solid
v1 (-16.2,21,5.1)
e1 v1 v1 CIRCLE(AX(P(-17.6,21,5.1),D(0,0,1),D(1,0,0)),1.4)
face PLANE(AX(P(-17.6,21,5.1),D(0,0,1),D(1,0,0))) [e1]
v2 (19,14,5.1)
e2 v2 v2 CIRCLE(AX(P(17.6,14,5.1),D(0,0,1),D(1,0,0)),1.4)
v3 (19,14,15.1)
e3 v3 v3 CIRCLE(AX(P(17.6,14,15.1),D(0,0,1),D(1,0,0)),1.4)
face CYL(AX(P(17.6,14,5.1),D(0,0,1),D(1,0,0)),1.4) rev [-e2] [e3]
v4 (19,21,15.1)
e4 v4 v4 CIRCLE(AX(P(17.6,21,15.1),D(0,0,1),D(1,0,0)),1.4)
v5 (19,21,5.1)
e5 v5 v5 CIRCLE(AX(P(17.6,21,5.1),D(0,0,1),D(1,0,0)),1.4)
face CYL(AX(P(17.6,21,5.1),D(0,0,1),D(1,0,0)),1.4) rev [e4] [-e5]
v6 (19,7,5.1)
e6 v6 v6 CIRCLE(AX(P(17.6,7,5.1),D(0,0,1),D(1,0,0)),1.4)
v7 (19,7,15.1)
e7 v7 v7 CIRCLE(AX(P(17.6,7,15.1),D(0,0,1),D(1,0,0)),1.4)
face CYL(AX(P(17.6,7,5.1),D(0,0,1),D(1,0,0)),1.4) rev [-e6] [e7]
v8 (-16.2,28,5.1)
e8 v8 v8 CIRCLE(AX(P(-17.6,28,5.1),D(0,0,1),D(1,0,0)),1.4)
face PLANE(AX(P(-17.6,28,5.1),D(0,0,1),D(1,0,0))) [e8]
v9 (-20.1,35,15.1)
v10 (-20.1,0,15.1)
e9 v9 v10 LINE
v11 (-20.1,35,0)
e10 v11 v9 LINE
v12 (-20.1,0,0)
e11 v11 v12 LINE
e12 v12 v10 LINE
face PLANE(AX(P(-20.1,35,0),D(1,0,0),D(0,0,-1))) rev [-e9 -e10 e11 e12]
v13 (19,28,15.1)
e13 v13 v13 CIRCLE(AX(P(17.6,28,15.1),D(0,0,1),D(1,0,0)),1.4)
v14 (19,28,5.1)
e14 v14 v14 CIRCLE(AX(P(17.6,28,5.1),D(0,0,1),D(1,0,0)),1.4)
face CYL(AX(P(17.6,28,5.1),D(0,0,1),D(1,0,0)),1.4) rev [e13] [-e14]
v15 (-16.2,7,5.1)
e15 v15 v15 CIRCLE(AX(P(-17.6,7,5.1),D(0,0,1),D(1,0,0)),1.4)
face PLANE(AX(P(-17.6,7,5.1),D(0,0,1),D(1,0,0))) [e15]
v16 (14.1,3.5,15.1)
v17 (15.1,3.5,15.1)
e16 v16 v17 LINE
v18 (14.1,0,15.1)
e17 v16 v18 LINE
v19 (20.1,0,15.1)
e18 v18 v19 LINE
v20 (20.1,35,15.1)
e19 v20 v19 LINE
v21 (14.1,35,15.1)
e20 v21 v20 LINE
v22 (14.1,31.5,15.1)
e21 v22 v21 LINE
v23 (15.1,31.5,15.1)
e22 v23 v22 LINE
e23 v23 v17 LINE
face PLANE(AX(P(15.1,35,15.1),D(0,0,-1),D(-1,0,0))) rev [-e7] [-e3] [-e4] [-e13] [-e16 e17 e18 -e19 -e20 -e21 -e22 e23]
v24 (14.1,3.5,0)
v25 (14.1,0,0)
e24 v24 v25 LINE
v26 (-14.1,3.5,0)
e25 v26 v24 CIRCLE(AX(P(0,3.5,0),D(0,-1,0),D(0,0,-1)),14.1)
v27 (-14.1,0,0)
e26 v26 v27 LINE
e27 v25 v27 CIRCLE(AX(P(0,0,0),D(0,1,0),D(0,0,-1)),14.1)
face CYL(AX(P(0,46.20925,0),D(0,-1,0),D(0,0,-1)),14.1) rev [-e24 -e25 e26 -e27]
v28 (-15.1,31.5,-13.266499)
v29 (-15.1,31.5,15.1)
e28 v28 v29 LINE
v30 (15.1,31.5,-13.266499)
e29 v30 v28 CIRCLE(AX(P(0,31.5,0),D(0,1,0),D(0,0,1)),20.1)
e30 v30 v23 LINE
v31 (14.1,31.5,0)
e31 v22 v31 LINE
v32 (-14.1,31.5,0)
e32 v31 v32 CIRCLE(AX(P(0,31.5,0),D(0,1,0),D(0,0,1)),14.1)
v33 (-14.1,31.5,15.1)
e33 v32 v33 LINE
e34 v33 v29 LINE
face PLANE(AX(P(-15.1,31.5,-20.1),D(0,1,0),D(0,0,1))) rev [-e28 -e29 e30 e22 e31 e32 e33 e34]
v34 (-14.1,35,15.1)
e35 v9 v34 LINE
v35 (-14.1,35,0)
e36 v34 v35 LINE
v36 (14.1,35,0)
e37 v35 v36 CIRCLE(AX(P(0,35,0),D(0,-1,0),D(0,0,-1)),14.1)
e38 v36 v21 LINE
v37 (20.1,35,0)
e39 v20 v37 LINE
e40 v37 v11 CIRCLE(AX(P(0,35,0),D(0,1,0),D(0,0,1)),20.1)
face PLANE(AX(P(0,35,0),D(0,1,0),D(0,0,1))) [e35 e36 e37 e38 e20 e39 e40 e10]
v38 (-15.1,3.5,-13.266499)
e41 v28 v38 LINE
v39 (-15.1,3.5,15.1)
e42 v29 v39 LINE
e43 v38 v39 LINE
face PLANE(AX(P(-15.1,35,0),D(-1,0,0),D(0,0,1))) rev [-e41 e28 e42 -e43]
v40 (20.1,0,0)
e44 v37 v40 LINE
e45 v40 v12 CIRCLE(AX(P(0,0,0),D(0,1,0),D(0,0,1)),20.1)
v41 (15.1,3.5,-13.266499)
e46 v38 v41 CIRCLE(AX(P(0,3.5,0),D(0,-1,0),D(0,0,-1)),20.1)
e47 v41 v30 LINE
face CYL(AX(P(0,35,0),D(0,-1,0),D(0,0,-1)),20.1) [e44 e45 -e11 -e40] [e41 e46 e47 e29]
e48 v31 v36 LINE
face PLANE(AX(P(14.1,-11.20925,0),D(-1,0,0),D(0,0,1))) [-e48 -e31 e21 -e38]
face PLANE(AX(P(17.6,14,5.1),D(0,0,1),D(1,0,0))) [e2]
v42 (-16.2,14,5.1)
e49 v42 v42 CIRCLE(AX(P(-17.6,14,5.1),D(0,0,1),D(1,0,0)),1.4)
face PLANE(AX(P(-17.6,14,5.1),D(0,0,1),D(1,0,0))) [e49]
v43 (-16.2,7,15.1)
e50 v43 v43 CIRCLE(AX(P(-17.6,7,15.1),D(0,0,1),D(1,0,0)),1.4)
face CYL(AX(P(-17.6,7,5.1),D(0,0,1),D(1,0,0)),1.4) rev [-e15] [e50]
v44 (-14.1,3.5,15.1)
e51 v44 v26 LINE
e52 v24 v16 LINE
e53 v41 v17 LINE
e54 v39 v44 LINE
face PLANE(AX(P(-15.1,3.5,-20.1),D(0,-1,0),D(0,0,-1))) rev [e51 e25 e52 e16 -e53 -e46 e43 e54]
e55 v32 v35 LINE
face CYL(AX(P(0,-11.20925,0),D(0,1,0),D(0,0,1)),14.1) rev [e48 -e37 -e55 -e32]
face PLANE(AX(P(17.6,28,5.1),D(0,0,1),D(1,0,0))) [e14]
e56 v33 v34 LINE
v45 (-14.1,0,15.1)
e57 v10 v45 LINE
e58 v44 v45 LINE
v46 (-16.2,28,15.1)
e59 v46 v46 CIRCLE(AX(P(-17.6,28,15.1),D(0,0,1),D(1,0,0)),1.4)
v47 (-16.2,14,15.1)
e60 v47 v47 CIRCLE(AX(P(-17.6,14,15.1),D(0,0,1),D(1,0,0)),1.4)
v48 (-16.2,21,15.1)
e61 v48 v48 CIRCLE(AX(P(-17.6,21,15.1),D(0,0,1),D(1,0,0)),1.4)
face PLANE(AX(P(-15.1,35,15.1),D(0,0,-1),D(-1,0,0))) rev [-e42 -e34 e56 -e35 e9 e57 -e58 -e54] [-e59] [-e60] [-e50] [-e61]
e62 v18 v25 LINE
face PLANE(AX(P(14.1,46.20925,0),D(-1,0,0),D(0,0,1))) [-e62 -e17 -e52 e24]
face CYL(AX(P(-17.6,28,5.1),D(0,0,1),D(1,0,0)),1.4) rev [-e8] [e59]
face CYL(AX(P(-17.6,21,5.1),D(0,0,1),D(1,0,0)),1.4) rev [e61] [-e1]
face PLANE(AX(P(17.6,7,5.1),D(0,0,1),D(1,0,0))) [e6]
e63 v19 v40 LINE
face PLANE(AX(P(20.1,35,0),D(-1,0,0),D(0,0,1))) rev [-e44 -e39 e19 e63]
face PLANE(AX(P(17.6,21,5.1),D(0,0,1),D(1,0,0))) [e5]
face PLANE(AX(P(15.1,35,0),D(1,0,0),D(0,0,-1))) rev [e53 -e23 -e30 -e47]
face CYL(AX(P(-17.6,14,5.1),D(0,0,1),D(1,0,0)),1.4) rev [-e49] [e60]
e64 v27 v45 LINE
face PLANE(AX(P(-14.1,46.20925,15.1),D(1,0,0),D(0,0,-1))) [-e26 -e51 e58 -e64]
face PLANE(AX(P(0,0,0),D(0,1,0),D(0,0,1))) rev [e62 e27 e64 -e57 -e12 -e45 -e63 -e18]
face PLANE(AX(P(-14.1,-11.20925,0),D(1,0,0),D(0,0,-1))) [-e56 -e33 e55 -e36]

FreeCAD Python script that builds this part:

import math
import FreeCAD as App
import Part
import Sketcher
from FreeCAD import Vector

doc = App.newDocument("Part")
body = doc.addObject("PartDesign::Body", "Body")

# Sketch on XZ plane
sketch1 = body.newObject("Sketcher::SketchObject", "Sketch")
sketch1.AttachmentSupport = (doc.getObject("XZ_Plane"), [""])
sketch1.MapMode = "FlatFace"
sketch1.addGeometry([
    Part.LineSegment(Vector(15, 0, 0), Vector(15, 15, 0)),  # 0
    Part.LineSegment(Vector(15, 15, 0), Vector(20, 15, 0)),  # 1
    Part.LineSegment(Vector(20, 15, 0), Vector(20, 0, 0)),  # 2
    Part.ArcOfCircle(Part.Circle(Vector(0, 0, 0), Vector(0, 0, 1), 20), math.radians(180), math.radians(360)),  # 3
    Part.LineSegment(Vector(-20, 0, 0), Vector(-20, 15, 0)),  # 4
    Part.LineSegment(Vector(-20, 15, 0), Vector(-15, 15, 0)),  # 5
    Part.LineSegment(Vector(-15, 15, 0), Vector(-15, 0, 0)),  # 6
    Part.ArcOfCircle(Part.Circle(Vector(0, 0, 0), Vector(0, 0, 1), 15), math.radians(180), math.radians(360)),  # 7
], False)
sketch1.addConstraint([
    Sketcher.Constraint("Coincident", 0, 2, 1, 1),
    Sketcher.Constraint("Coincident", 1, 2, 2, 1),
    Sketcher.Constraint("Tangent", 2, 2, 3, 2),
    Sketcher.Constraint("Tangent", 3, 1, 4, 1),
    Sketcher.Constraint("Coincident", 4, 2, 5, 1),
    Sketcher.Constraint("Coincident", 5, 2, 6, 1),
    Sketcher.Constraint("Tangent", 6, 2, 7, 1),
    Sketcher.Constraint("Tangent", 7, 2, 0, 1),
    Sketcher.Constraint("Vertical", 0),
    Sketcher.Constraint("Horizontal", 1),
    Sketcher.Constraint("Vertical", 2),
    Sketcher.Constraint("Vertical", 4),
    Sketcher.Constraint("Horizontal", 5),
    Sketcher.Constraint("Vertical", 6),
    Sketcher.Constraint("Coincident", 3, 3, -1, 1),
    Sketcher.Constraint("Coincident", 7, 3, -1, 1),
    Sketcher.Constraint("Horizontal", 1, 2, 4, 2),
    Sketcher.Constraint("Radius", 3, 20.1),
    Sketcher.Constraint("Radius", 7, 15.1),
    Sketcher.Constraint("DistanceY", 0, 1, 0, 2, 15.1),
])
pad1 = body.newObject("PartDesign::Pad", "Pad")
pad1.Profile = sketch1
pad1.Length = 35
pad1.Reversed = True

# Sketch on XY plane
sketch2 = body.newObject("Sketcher::SketchObject", "Sketch001")
sketch2.AttachmentSupport = (doc.getObject("XY_Plane"), [""])
sketch2.MapMode = "FlatFace"
sketch2.AttachmentOffset = App.Placement(Vector(0, 0, 15.1), App.Rotation())
sketch2.addGeometry([
    Part.LineSegment(Vector(-15, 32, 0), Vector(-15, 4, 0)),
    Part.LineSegment(Vector(-15, 4, 0), Vector(15, 4, 0)),
    Part.LineSegment(Vector(15, 4, 0), Vector(15, 32, 0)),
    Part.LineSegment(Vector(15, 32, 0), Vector(-15, 32, 0)),
], False)
sketch2.addConstraint([
    Sketcher.Constraint("Coincident", 0, 2, 1, 1),
    Sketcher.Constraint("Coincident", 1, 2, 2, 1),
    Sketcher.Constraint("Coincident", 2, 2, 3, 1),
    Sketcher.Constraint("Coincident", 3, 2, 0, 1),
    Sketcher.Constraint("Vertical", 0),
    Sketcher.Constraint("Horizontal", 1),
    Sketcher.Constraint("Vertical", 2),
    Sketcher.Constraint("Horizontal", 3),
    Sketcher.Constraint("DistanceY", 0, 2, 0, 1, 28.0),
    Sketcher.Constraint("DistanceX", 1, 1, 1, 2, 30.2),
    Sketcher.Constraint("DistanceX", 0, 2, -1, 1, 15.1),
    Sketcher.Constraint("DistanceY", -1, 1, 0, 2, 3.5),
])
pocket1 = body.newObject("PartDesign::Pocket", "Pocket")
pocket1.Profile = sketch2
pocket1.Type = "ThroughAll"

# Sketch on XZ plane
sketch3 = body.newObject("Sketcher::SketchObject", "Sketch002")
sketch3.AttachmentSupport = (doc.getObject("XZ_Plane"), [""])
sketch3.MapMode = "FlatFace"
sketch3.AttachmentOffset = App.Placement(Vector(0, 0, -31.5), App.Rotation())
sketch3.addGeometry([
    Part.LineSegment(Vector(-15.1, 0, 0), Vector(-15.1, 15.1, 0)),  # 0
    Part.LineSegment(Vector(-15.1, 15.1, 0), Vector(-14.1, 15.1, 0)),  # 1
    Part.LineSegment(Vector(-14.1, 15.1, 0), Vector(-14.1, 0, 0)),  # 2
    Part.ArcOfCircle(Part.Circle(Vector(0, 0, 0), Vector(0, 0, 1), 14.1), math.radians(180), math.radians(360)),  # 3
    Part.LineSegment(Vector(14.1, 0, 0), Vector(14.1, 15.1, 0)),  # 4
    Part.LineSegment(Vector(14.1, 15.1, 0), Vector(15.1, 15.1, 0)),  # 5
    Part.LineSegment(Vector(15.1, 15.1, 0), Vector(15.1, 0, 0)),  # 6
    Part.ArcOfCircle(Part.Circle(Vector(0, 0, 0), Vector(0, 0, 1), 15.1), math.radians(180), math.radians(360)),  # 7
], False)
sketch3.addConstraint([
    Sketcher.Constraint("Coincident", 0, 2, 1, 1),
    Sketcher.Constraint("Coincident", 1, 2, 2, 1),
    Sketcher.Constraint("Tangent", 2, 2, 3, 1),
    Sketcher.Constraint("Tangent", 3, 2, 4, 1),
    Sketcher.Constraint("Coincident", 4, 2, 5, 1),
    Sketcher.Constraint("Coincident", 5, 2, 6, 1),
    Sketcher.Constraint("Tangent", 6, 2, 7, 2),
    Sketcher.Constraint("Tangent", 7, 1, 0, 1),
    Sketcher.Constraint("Vertical", 0),
    Sketcher.Constraint("Horizontal", 1),
    Sketcher.Constraint("Vertical", 2),
    Sketcher.Constraint("Vertical", 4),
    Sketcher.Constraint("Horizontal", 5),
    Sketcher.Constraint("Vertical", 6),
    Sketcher.Constraint("Coincident", 3, 3, -1, 1),
    Sketcher.Constraint("Coincident", 7, 3, -1, 1),
    Sketcher.Constraint("Horizontal", 1, 2, 4, 2),
    Sketcher.Constraint("Radius", 3, 14.1),
    Sketcher.Constraint("Radius", 7, 15.1),
    Sketcher.Constraint("DistanceY", 0, 1, 0, 2, 15.1),
])
pad2 = body.newObject("PartDesign::Pad", "Pad001")
pad2.Profile = sketch3
pad2.Length = 3.5
pad2.Reversed = True

# Sketch on XZ plane
sketch4 = body.newObject("Sketcher::SketchObject", "Sketch003")
sketch4.AttachmentSupport = (doc.getObject("XZ_Plane"), [""])
sketch4.MapMode = "FlatFace"
sketch4.addGeometry([
    Part.LineSegment(Vector(-15.1, 15.1, 0), Vector(-15.1, 0, 0)),  # 0
    Part.ArcOfCircle(Part.Circle(Vector(0, 0, 0), Vector(0, 0, 1), 15.1), math.radians(180), math.radians(360)),  # 1
    Part.LineSegment(Vector(15.1, 0, 0), Vector(15.1, 15.1, 0)),  # 2
    Part.LineSegment(Vector(15.1, 15.1, 0), Vector(14.1, 15.1, 0)),  # 3
    Part.LineSegment(Vector(14.1, 15.1, 0), Vector(14.1, 0, 0)),  # 4
    Part.ArcOfCircle(Part.Circle(Vector(0, 0, 0), Vector(0, 0, 1), 14.1), math.radians(180), math.radians(360)),  # 5
    Part.LineSegment(Vector(-14.1, 0, 0), Vector(-14.1, 15.1, 0)),  # 6
    Part.LineSegment(Vector(-14.1, 15.1, 0), Vector(-15.1, 15.1, 0)),  # 7
], False)
sketch4.addConstraint([
    Sketcher.Constraint("Tangent", 0, 2, 1, 1),
    Sketcher.Constraint("Tangent", 1, 2, 2, 1),
    Sketcher.Constraint("Coincident", 2, 2, 3, 1),
    Sketcher.Constraint("Coincident", 3, 2, 4, 1),
    Sketcher.Constraint("Tangent", 4, 2, 5, 2),
    Sketcher.Constraint("Tangent", 5, 1, 6, 1),
    Sketcher.Constraint("Coincident", 6, 2, 7, 1),
    Sketcher.Constraint("Coincident", 7, 2, 0, 1),
    Sketcher.Constraint("Vertical", 0),
    Sketcher.Constraint("Vertical", 2),
    Sketcher.Constraint("Horizontal", 3),
    Sketcher.Constraint("Vertical", 4),
    Sketcher.Constraint("Vertical", 6),
    Sketcher.Constraint("Horizontal", 7),
    Sketcher.Constraint("Coincident", 1, 3, -1, 1),
    Sketcher.Constraint("Coincident", 5, 3, -1, 1),
    Sketcher.Constraint("Horizontal", 3, 2, 6, 2),
    Sketcher.Constraint("Radius", 1, 15.1),
    Sketcher.Constraint("Radius", 5, 14.1),
    Sketcher.Constraint("DistanceY", 0, 2, 0, 1, 15.1),
])
pad3 = body.newObject("PartDesign::Pad", "Pad002")
pad3.Profile = sketch4
pad3.Length = 3.5
pad3.Reversed = True

# Sketch on XY plane
sketch5 = body.newObject("Sketcher::SketchObject", "Sketch004")
sketch5.AttachmentSupport = (doc.getObject("XY_Plane"), [""])
sketch5.MapMode = "FlatFace"
sketch5.AttachmentOffset = App.Placement(Vector(0, 0, 15.1), App.Rotation())
sketch5.addGeometry([
    Part.Circle(Vector(-17.6, 28, 0), Vector(0, 0, 1), 1.4),  # 0
    Part.Circle(Vector(17.6, 28, 0), Vector(0, 0, 1), 1.4),  # 1
    Part.Circle(Vector(17.6, 21, 0), Vector(0, 0, 1), 1.4),  # 2
    Part.Circle(Vector(17.6, 14, 0), Vector(0, 0, 1), 1.4),  # 3
    Part.Circle(Vector(17.6, 7, 0), Vector(0, 0, 1), 1.4),  # 4
    Part.Circle(Vector(-17.6, 21, 0), Vector(0, 0, 1), 1.4),  # 5
    Part.Circle(Vector(-17.6, 14, 0), Vector(0, 0, 1), 1.4),  # 6
    Part.Circle(Vector(-17.6, 7, 0), Vector(0, 0, 1), 1.4),  # 7
], False)
sketch5.addConstraint([
    Sketcher.Constraint("Equal", 0, 1),
    Sketcher.Constraint("Equal", 1, 2),
    Sketcher.Constraint("Equal", 2, 3),
    Sketcher.Constraint("Equal", 3, 4),
    Sketcher.Constraint("Equal", 4, 5),
    Sketcher.Constraint("Equal", 5, 6),
    Sketcher.Constraint("Equal", 6, 7),
    Sketcher.Constraint("Symmetric", 0, 3, 1, 3, -2),
    Sketcher.Constraint("Symmetric", 2, 3, 5, 3, -2),
    Sketcher.Constraint("Symmetric", 3, 3, 6, 3, -2),
    Sketcher.Constraint("Symmetric", 4, 3, 7, 3, -2),
    Sketcher.Constraint("Vertical", 1, 3, 2, 3),
    Sketcher.Constraint("Vertical", 2, 3, 3, 3),
    Sketcher.Constraint("Vertical", 3, 3, 4, 3),
    Sketcher.Constraint("Diameter", 0, 2.8),
    Sketcher.Constraint("DistanceY", -1, 1, 0, 3, 28.0),
    Sketcher.Constraint("DistanceY", -1, 1, 2, 3, 21.0),
    Sketcher.Constraint("DistanceY", -1, 1, 3, 3, 14.0),
    Sketcher.Constraint("DistanceY", -1, 1, 4, 3, 7.0),
    Sketcher.Constraint("DistanceX", 0, 3, -1, 1, 17.6),
])
pocket2 = body.newObject("PartDesign::Pocket", "Pocket001")
pocket2.Profile = sketch5
pocket2.Length = 10

doc.recompute()
